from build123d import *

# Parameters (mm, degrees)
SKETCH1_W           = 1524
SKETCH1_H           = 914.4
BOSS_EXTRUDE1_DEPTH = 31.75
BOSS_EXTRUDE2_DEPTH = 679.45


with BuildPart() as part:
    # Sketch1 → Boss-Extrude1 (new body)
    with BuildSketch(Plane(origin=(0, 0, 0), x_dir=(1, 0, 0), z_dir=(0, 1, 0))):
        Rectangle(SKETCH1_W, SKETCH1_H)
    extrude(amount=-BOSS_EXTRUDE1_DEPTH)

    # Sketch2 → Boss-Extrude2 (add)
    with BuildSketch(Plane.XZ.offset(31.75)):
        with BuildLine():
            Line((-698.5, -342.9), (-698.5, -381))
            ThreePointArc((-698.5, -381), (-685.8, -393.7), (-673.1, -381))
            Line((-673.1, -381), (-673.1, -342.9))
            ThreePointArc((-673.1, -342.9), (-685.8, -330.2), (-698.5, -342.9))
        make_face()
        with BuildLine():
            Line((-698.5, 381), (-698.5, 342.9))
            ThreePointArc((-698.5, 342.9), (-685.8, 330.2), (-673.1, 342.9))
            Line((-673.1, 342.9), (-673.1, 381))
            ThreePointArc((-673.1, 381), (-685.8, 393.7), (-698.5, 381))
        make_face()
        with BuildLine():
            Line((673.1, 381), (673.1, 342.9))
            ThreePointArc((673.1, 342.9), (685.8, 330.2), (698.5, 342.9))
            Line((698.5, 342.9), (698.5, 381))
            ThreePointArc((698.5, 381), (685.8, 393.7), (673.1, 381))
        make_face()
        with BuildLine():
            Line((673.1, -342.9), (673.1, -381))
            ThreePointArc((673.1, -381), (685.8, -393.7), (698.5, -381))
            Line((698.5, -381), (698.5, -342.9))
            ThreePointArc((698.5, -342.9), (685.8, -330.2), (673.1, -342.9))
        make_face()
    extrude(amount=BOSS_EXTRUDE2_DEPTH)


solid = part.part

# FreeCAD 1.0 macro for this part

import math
import FreeCAD as App
import Part
import Sketcher
Q = App.Units.Quantity


def add_polygon(sketch, points):
    """Adds a closed chain of lines whose ends are joined by coincident constraints."""
    first, n = sketch.GeometryCount, len(points)
    for a, b in zip(points, points[1:] + points[:1]):
        sketch.addGeometry(Part.LineSegment(App.Vector(*a, 0), App.Vector(*b, 0)), False)
    for i in range(n):
        sketch.addConstraint(Sketcher.Constraint("Coincident", first + i, 2, first + (i + 1) % n, 1))

doc = App.newDocument("Part")
body = doc.addObject("PartDesign::Body", "Body")

# Sketch on XZ plane
sketch1 = body.newObject("Sketcher::SketchObject", "Sketch")
sketch1.AttachmentSupport = (doc.getObject("XZ_Plane"), [""])
sketch1.MapMode = "FlatFace"
add_polygon(sketch1, [(-762, -457), (-762, 457), (762, 457), (762, -457)])  # lines 0-3
sketch1.addConstraint(Sketcher.Constraint("Vertical", 0))
sketch1.addConstraint(Sketcher.Constraint("Horizontal", 1))
sketch1.addConstraint(Sketcher.Constraint("Vertical", 2))
sketch1.addConstraint(Sketcher.Constraint("Horizontal", 3))
sketch1.addConstraint(Sketcher.Constraint("Symmetric", 0, 2, 2, 2, -1, 1))
sketch1.addConstraint(Sketcher.Constraint("DistanceX", 1, 1, 1, 2, Q("60 in")))
sketch1.addConstraint(Sketcher.Constraint("DistanceY", 0, 1, 0, 2, Q("36 in")))
pad1 = body.newObject("PartDesign::Pad", "Pad")
pad1.Profile = sketch1
pad1.Length = Q("1.25 in")

# Sketch on XZ plane
sketch2 = body.newObject("Sketcher::SketchObject", "Sketch001")
sketch2.AttachmentSupport = (doc.getObject("XZ_Plane"), [""])
sketch2.MapMode = "FlatFace"
sketch2.AttachmentOffset = App.Placement(App.Vector(0, 0, 1.25 * 25.4), App.Rotation())
sketch2.addGeometry(Part.LineSegment(App.Vector(-698, -343, 0), App.Vector(-698, -381, 0)), False)
sketch2.addGeometry(Part.ArcOfCircle(Part.Circle(App.Vector(-686, -381, 0), App.Vector(0, 0, 1), 13), math.radians(180), math.radians(360)), False)
sketch2.addGeometry(Part.LineSegment(App.Vector(-673, -381, 0), App.Vector(-673, -343, 0)), False)
sketch2.addGeometry(Part.ArcOfCircle(Part.Circle(App.Vector(-686, -343, 0), App.Vector(0, 0, 1), 13), math.radians(0), math.radians(180)), False)
sketch2.addGeometry(Part.LineSegment(App.Vector(-698, 381, 0), App.Vector(-698, 343, 0)), False)
sketch2.addGeometry(Part.ArcOfCircle(Part.Circle(App.Vector(-686, 343, 0), App.Vector(0, 0, 1), 13), math.radians(180), math.radians(360)), False)
sketch2.addGeometry(Part.LineSegment(App.Vector(-673, 343, 0), App.Vector(-673, 381, 0)), False)
sketch2.addGeometry(Part.ArcOfCircle(Part.Circle(App.Vector(-686, 381, 0), App.Vector(0, 0, 1), 13), math.radians(0), math.radians(180)), False)
sketch2.addGeometry(Part.LineSegment(App.Vector(673, 381, 0), App.Vector(673, 343, 0)), False)
sketch2.addGeometry(Part.ArcOfCircle(Part.Circle(App.Vector(686, 343, 0), App.Vector(0, 0, 1), 13), math.radians(180), math.radians(360)), False)
sketch2.addGeometry(Part.LineSegment(App.Vector(698, 343, 0), App.Vector(698, 381, 0)), False)
sketch2.addGeometry(Part.ArcOfCircle(Part.Circle(App.Vector(686, 381, 0), App.Vector(0, 0, 1), 13), math.radians(0), math.radians(180)), False)
sketch2.addGeometry(Part.LineSegment(App.Vector(673, -343, 0), App.Vector(673, -381, 0)), False)
sketch2.addGeometry(Part.ArcOfCircle(Part.Circle(App.Vector(686, -381, 0), App.Vector(0, 0, 1), 13), math.radians(180), math.radians(360)), False)
sketch2.addGeometry(Part.LineSegment(App.Vector(698, -381, 0), App.Vector(698, -343, 0)), False)
sketch2.addGeometry(Part.ArcOfCircle(Part.Circle(App.Vector(686, -343, 0), App.Vector(0, 0, 1), 13), math.radians(0), math.radians(180)), False)
sketch2.addConstraint(Sketcher.Constraint("Tangent", 0, 2, 1, 1))
sketch2.addConstraint(Sketcher.Constraint("Tangent", 1, 2, 2, 1))
sketch2.addConstraint(Sketcher.Constraint("Tangent", 2, 2, 3, 1))
sketch2.addConstraint(Sketcher.Constraint("Tangent", 3, 2, 0, 1))
sketch2.addConstraint(Sketcher.Constraint("Tangent", 4, 2, 5, 1))
sketch2.addConstraint(Sketcher.Constraint("Tangent", 5, 2, 6, 1))
sketch2.addConstraint(Sketcher.Constraint("Tangent", 6, 2, 7, 1))
sketch2.addConstraint(Sketcher.Constraint("Tangent", 7, 2, 4, 1))
sketch2.addConstraint(Sketcher.Constraint("Tangent", 8, 2, 9, 1))
sketch2.addConstraint(Sketcher.Constraint("Tangent", 9, 2, 10, 1))
sketch2.addConstraint(Sketcher.Constraint("Tangent", 10, 2, 11, 1))
sketch2.addConstraint(Sketcher.Constraint("Tangent", 11, 2, 8, 1))
sketch2.addConstraint(Sketcher.Constraint("Tangent", 12, 2, 13, 1))
sketch2.addConstraint(Sketcher.Constraint("Tangent", 13, 2, 14, 1))
sketch2.addConstraint(Sketcher.Constraint("Tangent", 14, 2, 15, 1))
sketch2.addConstraint(Sketcher.Constraint("Tangent", 15, 2, 12, 1))
sketch2.addConstraint(Sketcher.Constraint("Vertical", 0))
sketch2.addConstraint(Sketcher.Constraint("Vertical", 2))
sketch2.addConstraint(Sketcher.Constraint("Vertical", 4))
sketch2.addConstraint(Sketcher.Constraint("Vertical", 6))
sketch2.addConstraint(Sketcher.Constraint("Vertical", 8))
sketch2.addConstraint(Sketcher.Constraint("Vertical", 10))
sketch2.addConstraint(Sketcher.Constraint("Vertical", 12))
sketch2.addConstraint(Sketcher.Constraint("Vertical", 14))
sketch2.addConstraint(Sketcher.Constraint("Equal", 3, 5))
sketch2.addConstraint(Sketcher.Constraint("Equal", 7, 9))
sketch2.addConstraint(Sketcher.Constraint("Equal", 11, 13))
sketch2.addConstraint(Sketcher.Constraint("Symmetric", 3, 3, 9, 3, -1, 1))
sketch2.addConstraint(Sketcher.Constraint("Symmetric", 7, 3, 13, 3, -1, 1))
sketch2.addConstraint(Sketcher.Constraint("Symmetric", 5, 3, 9, 3, -2))
sketch2.addConstraint(Sketcher.Constraint("Horizontal", 7, 3, 11, 3))
sketch2.addConstraint(Sketcher.Constraint("Horizontal", 1, 3, 13, 3))
sketch2.addConstraint(Sketcher.Constraint("Horizontal", 3, 3, 15, 3))
sketch2.addConstraint(Sketcher.Constraint("Radius", 1, Q("0.5 in")))
sketch2.addConstraint(Sketcher.Constraint("DistanceY", 0, 2, 0, 1, Q("1.5 in")))
sketch2.addConstraint(Sketcher.Constraint("DistanceX", 1, 3, -1, 1, Q("27 in")))
sketch2.addConstraint(Sketcher.Constraint("DistanceY", 1, 3, -1, 1, Q("15 in")))
pad2 = body.newObject("PartDesign::Pad", "Pad001")
pad2.Profile = sketch2
pad2.Length = Q("26.75 in")

doc.recompute()
